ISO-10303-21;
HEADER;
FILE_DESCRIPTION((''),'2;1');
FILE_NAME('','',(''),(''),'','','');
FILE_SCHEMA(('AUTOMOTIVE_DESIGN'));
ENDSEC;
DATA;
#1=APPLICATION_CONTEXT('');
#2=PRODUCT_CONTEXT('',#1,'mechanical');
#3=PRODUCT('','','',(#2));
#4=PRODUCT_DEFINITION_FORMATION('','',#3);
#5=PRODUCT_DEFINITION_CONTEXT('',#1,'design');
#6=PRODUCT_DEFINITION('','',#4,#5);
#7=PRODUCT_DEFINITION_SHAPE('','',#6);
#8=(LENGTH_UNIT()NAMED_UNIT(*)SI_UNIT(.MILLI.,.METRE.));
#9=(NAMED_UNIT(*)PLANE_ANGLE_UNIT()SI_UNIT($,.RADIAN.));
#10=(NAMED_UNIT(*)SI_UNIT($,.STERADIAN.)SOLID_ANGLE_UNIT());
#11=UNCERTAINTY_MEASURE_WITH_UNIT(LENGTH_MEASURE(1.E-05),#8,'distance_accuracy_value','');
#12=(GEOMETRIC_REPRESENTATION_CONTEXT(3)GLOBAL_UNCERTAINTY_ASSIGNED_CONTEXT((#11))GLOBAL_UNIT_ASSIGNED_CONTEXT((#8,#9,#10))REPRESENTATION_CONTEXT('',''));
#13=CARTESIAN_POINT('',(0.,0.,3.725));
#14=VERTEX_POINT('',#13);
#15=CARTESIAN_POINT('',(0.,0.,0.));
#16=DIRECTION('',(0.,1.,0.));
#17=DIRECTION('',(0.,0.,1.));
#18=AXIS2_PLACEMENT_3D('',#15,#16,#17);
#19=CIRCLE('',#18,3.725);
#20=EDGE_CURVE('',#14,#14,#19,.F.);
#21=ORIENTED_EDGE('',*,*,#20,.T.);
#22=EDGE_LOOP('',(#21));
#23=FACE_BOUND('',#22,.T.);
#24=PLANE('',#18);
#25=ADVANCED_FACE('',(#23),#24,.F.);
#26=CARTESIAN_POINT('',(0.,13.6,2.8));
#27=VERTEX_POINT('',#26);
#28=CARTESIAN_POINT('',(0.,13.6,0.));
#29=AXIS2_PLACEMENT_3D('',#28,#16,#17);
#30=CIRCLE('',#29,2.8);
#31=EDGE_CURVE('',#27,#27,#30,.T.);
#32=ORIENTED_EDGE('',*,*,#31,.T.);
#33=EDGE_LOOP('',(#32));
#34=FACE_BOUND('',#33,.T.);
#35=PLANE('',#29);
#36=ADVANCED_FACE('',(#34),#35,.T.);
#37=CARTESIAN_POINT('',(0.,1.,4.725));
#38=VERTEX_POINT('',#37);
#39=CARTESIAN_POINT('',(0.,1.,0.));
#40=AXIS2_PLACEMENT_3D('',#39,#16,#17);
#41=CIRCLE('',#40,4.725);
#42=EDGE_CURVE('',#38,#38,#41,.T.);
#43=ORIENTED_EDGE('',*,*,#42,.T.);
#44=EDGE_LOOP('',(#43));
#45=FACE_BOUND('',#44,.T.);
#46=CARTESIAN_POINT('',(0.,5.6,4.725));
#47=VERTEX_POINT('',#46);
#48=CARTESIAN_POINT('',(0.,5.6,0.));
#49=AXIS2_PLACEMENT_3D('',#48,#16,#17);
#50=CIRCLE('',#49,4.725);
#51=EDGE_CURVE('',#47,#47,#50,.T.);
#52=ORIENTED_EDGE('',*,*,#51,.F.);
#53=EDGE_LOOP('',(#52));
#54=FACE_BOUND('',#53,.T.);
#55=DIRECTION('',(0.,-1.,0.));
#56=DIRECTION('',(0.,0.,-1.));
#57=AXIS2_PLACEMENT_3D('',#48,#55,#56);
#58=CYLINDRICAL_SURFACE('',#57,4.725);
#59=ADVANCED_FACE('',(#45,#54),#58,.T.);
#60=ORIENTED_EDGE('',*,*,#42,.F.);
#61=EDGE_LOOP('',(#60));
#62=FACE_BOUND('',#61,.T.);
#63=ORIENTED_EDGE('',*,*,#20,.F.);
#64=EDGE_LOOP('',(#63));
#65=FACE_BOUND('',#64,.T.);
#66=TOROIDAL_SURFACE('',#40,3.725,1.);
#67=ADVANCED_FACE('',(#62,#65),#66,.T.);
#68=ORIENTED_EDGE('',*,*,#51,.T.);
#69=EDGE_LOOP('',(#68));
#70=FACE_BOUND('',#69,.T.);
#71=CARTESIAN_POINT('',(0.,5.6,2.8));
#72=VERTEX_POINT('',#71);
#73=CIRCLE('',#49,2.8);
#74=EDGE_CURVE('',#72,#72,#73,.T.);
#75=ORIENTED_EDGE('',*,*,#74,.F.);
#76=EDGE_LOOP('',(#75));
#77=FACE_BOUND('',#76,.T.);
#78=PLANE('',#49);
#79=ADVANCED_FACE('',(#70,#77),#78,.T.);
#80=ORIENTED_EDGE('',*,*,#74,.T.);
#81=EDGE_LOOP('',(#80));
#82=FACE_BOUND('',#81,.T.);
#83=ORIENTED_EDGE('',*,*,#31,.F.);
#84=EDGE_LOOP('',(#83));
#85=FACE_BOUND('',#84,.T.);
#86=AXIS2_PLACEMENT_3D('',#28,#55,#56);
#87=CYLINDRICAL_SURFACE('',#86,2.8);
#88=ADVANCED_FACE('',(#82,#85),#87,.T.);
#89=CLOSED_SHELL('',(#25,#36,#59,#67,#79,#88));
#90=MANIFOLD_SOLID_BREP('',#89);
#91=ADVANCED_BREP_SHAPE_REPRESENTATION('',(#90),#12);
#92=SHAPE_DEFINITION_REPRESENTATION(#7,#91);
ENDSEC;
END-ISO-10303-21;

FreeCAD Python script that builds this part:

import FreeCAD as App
import Part
import Sketcher


def edges_at(feature, points):
    """Names of the edges that pass closest to the given points."""
    edges = feature.Shape.Edges
    near = lambda p: min(range(len(edges)), key=lambda i: edges[i].distToShape(Part.Vertex(*p))[0])
    return sorted({f"Edge{near(p) + 1}" for p in points})

doc = App.newDocument("Part")
body = doc.addObject("PartDesign::Body", "Body")

# Sketch on XZ plane
sketch1 = body.newObject("Sketcher::SketchObject", "Sketch")
sketch1.AttachmentSupport = (doc.getObject("XZ_Plane"), [""])
sketch1.MapMode = "FlatFace"
sketch1.addGeometry(Part.Circle(App.Vector(0, 0, 0), App.Vector(0, 0, 1), 4.7), False)
sketch1.addConstraint([
    Sketcher.Constraint("Coincident", 0, 3, -1, 1),
    Sketcher.Constraint("Diameter", 0, 9.45),
])
pad1 = body.newObject("PartDesign::Pad", "Pad")
pad1.Profile = sketch1
pad1.Length = 5.6
pad1.Reversed = True

# Sketch on XZ plane
sketch2 = body.newObject("Sketcher::SketchObject", "Sketch001")
sketch2.AttachmentSupport = (doc.getObject("XZ_Plane"), [""])
sketch2.MapMode = "FlatFace"
sketch2.AttachmentOffset = App.Placement(App.Vector(0, 0, -5.6), App.Rotation())
sketch2.addGeometry(Part.Circle(App.Vector(0, 0, 0), App.Vector(0, 0, 1), 2.8), False)
sketch2.addConstraint([
    Sketcher.Constraint("Coincident", 0, 3, -1, 1),
    Sketcher.Constraint("Diameter", 0, 5.6),
])
pad2 = body.newObject("PartDesign::Pad", "Pad001")
pad2.Profile = sketch2
pad2.Length = 8
pad2.Reversed = True
doc.recompute()

fillet = body.newObject("PartDesign::Fillet", "Fillet")
fillet.Base = (pad2, edges_at(pad2, [(-4.725, 0, 0)]))
fillet.Radius = 1

doc.recompute()
